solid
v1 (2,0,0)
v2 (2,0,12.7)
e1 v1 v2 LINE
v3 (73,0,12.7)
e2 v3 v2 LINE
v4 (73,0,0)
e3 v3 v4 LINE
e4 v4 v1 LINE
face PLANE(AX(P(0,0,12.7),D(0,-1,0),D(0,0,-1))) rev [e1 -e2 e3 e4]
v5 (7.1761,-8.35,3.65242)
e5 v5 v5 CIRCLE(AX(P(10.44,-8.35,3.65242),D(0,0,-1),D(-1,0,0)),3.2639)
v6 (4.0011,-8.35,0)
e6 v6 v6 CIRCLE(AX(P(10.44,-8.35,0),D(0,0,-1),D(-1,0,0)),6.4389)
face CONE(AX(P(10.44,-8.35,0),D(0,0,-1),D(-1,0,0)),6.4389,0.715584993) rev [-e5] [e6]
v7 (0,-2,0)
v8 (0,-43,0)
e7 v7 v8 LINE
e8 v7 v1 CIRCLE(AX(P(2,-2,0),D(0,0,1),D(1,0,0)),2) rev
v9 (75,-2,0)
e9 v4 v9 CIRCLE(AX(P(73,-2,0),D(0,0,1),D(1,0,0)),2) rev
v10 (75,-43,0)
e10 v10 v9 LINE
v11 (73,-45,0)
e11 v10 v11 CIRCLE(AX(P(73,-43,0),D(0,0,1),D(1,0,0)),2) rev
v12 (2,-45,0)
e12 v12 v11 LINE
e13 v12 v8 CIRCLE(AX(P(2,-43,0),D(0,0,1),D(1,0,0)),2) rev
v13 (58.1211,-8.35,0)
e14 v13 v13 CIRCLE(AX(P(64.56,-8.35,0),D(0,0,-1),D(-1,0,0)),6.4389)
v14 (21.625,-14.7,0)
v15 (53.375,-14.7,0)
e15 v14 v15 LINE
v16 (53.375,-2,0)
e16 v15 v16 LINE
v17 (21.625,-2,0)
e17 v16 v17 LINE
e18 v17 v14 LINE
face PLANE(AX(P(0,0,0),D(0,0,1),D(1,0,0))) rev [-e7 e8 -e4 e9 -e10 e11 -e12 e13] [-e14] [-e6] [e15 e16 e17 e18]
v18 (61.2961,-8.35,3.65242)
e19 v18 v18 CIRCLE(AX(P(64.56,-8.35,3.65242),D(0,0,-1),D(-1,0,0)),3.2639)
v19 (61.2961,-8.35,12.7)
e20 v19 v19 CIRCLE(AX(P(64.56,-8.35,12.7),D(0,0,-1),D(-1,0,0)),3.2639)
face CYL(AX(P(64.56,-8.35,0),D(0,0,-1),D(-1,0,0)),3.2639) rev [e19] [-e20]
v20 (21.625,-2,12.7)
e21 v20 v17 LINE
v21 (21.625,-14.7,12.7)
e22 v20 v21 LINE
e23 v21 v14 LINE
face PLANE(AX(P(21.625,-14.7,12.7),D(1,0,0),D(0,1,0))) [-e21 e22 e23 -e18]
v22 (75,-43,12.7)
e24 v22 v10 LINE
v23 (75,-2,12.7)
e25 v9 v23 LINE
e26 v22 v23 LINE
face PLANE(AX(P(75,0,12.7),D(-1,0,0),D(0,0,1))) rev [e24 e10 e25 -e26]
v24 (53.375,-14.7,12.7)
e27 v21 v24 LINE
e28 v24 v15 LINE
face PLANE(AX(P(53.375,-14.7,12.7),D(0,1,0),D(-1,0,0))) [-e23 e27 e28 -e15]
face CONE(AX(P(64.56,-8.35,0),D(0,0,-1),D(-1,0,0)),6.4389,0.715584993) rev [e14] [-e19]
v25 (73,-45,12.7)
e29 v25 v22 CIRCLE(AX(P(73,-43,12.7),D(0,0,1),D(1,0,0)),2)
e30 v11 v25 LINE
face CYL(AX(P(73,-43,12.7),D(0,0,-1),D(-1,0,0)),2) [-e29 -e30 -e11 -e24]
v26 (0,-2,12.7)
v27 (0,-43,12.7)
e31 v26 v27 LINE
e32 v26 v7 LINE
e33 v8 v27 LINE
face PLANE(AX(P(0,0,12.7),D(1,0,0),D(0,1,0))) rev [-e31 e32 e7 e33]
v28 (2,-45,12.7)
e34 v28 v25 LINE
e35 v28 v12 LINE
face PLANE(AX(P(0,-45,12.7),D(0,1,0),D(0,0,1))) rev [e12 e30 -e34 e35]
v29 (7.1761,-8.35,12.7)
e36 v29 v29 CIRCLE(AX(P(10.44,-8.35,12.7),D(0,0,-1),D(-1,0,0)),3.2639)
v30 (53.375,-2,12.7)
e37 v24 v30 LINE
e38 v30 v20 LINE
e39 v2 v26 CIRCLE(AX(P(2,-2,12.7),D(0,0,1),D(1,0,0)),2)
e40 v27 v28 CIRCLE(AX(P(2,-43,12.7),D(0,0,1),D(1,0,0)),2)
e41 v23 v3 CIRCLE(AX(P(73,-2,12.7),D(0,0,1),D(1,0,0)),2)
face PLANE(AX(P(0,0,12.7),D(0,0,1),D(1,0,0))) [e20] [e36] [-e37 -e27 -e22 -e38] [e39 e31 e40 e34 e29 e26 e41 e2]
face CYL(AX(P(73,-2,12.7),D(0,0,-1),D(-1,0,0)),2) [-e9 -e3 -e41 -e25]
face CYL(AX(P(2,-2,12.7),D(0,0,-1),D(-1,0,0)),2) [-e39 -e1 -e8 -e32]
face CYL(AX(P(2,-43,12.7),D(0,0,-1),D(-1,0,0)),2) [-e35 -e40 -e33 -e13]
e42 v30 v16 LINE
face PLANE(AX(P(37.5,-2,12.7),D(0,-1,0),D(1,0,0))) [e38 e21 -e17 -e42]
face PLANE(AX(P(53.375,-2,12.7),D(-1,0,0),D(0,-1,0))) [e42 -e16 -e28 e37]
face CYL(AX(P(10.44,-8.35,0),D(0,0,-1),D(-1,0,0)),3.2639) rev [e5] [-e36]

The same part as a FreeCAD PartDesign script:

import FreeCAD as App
import Part
import Sketcher

V = App.Vector


def edges_at(feature, points):
    """Names of the edges that pass closest to the given points."""
    edges = feature.Shape.Edges
    near = lambda p: min(range(len(edges)), key=lambda i: edges[i].distToShape(Part.Vertex(*p))[0])
    return sorted({f"Edge{near(p) + 1}" for p in points})


def add_polygon(sketch, points):
    """Adds a closed chain of lines whose ends are joined by coincident constraints."""
    first, n = sketch.GeometryCount, len(points)
    for a, b in zip(points, points[1:] + points[:1]):
        sketch.addGeometry(Part.LineSegment(App.Vector(*a, 0), App.Vector(*b, 0)), False)
    for i in range(n):
        sketch.addConstraint(Sketcher.Constraint("Coincident", first + i, 2, first + (i + 1) % n, 1))

doc = App.newDocument("Part")
body = doc.addObject("PartDesign::Body", "Body")

sketch1 = doc.addObject("Sketcher::SketchObject", "Sketch")
body.addObject(sketch1)
sketch1.AttachmentSupport = (doc.XY_Plane, [""])
sketch1.MapMode = "FlatFace"
add_polygon(sketch1, [(0, 0), (0, -45), (75, -45), (75, 0)])
add_polygon(sketch1, [(21.625, -2), (53.375, -2), (53.375, -14.7), (21.625, -14.7)])
sketch1.addConstraint([
    Sketcher.Constraint("Vertical", 0),
    Sketcher.Constraint("Horizontal", 1),
    Sketcher.Constraint("Vertical", 2),
    Sketcher.Constraint("Horizontal", 3),
    Sketcher.Constraint("Horizontal", 4),
    Sketcher.Constraint("Vertical", 5),
    Sketcher.Constraint("Horizontal", 6),
    Sketcher.Constraint("Vertical", 7),
    Sketcher.Constraint("Coincident", 3, 2, -1, 1),
    Sketcher.Constraint("DistanceX", 1, 1, 1, 2, 75.0),
    Sketcher.Constraint("DistanceY", 0, 2, 0, 1, 45.0),
    Sketcher.Constraint("DistanceY", 5, 2, 5, 1, 12.7),
    Sketcher.Constraint("DistanceY", 4, 2, -1, 1, 2.0),
    Sketcher.Constraint("DistanceX", 4, 1, 4, 2, 31.75),
    Sketcher.Constraint("DistanceX", -1, 1, 4, 2, 53.375),
])
pad1 = doc.addObject("PartDesign::Pad", "Pad")
body.addObject(pad1)
pad1.Profile = sketch1
pad1.Length = 12.7

sketch2 = doc.addObject("Sketcher::SketchObject", "Sketch001")
body.addObject(sketch2)
sketch2.AttachmentSupport = (doc.XY_Plane, [""])
sketch2.MapMode = "FlatFace"
sketch2.addGeometry([
    Part.Circle(V(64.56, -8.35, 0), V(0, 0, 1), 3.2639),
    Part.Circle(V(10.44, -8.35, 0), V(0, 0, 1), 3.2639),
], False)
sketch2.addConstraint([
    Sketcher.Constraint("Equal", 0, 1),
    Sketcher.Constraint("Horizontal", 0, 3, 1, 3),
    Sketcher.Constraint("Diameter", 0, 6.5278),
    Sketcher.Constraint("DistanceX", -1, 1, 0, 3, 64.56),
    Sketcher.Constraint("DistanceY", 0, 3, -1, 1, 8.35),
    Sketcher.Constraint("DistanceX", -1, 1, 1, 3, 10.44),
])
doc.recompute()
hole = doc.addObject("PartDesign::Hole", "Hole")
body.addObject(hole)
hole.Profile = sketch2
hole.ThreadType = "None"
hole.Diameter = 6.5278
hole.DepthType = "ThroughAll"
hole.HoleCutType = "Countersink"
hole.HoleCutDiameter = 12.8778
hole.HoleCutCountersinkAngle = 82
hole.Reversed = True
doc.recompute()

fillet = doc.addObject("PartDesign::Fillet", "Fillet")
body.addObject(fillet)
fillet.Base = (hole, edges_at(hole, [(0, 0, 6.35), (0, -45, 6.35)]))
fillet.Radius = 2
doc.recompute()

fillet2 = doc.addObject("PartDesign::Fillet", "Fillet001")
body.addObject(fillet2)
fillet2.Base = (fillet, edges_at(fillet, [(75, 0, 6.35), (75, -45, 6.35)]))
fillet2.Radius = 2

doc.recompute()
